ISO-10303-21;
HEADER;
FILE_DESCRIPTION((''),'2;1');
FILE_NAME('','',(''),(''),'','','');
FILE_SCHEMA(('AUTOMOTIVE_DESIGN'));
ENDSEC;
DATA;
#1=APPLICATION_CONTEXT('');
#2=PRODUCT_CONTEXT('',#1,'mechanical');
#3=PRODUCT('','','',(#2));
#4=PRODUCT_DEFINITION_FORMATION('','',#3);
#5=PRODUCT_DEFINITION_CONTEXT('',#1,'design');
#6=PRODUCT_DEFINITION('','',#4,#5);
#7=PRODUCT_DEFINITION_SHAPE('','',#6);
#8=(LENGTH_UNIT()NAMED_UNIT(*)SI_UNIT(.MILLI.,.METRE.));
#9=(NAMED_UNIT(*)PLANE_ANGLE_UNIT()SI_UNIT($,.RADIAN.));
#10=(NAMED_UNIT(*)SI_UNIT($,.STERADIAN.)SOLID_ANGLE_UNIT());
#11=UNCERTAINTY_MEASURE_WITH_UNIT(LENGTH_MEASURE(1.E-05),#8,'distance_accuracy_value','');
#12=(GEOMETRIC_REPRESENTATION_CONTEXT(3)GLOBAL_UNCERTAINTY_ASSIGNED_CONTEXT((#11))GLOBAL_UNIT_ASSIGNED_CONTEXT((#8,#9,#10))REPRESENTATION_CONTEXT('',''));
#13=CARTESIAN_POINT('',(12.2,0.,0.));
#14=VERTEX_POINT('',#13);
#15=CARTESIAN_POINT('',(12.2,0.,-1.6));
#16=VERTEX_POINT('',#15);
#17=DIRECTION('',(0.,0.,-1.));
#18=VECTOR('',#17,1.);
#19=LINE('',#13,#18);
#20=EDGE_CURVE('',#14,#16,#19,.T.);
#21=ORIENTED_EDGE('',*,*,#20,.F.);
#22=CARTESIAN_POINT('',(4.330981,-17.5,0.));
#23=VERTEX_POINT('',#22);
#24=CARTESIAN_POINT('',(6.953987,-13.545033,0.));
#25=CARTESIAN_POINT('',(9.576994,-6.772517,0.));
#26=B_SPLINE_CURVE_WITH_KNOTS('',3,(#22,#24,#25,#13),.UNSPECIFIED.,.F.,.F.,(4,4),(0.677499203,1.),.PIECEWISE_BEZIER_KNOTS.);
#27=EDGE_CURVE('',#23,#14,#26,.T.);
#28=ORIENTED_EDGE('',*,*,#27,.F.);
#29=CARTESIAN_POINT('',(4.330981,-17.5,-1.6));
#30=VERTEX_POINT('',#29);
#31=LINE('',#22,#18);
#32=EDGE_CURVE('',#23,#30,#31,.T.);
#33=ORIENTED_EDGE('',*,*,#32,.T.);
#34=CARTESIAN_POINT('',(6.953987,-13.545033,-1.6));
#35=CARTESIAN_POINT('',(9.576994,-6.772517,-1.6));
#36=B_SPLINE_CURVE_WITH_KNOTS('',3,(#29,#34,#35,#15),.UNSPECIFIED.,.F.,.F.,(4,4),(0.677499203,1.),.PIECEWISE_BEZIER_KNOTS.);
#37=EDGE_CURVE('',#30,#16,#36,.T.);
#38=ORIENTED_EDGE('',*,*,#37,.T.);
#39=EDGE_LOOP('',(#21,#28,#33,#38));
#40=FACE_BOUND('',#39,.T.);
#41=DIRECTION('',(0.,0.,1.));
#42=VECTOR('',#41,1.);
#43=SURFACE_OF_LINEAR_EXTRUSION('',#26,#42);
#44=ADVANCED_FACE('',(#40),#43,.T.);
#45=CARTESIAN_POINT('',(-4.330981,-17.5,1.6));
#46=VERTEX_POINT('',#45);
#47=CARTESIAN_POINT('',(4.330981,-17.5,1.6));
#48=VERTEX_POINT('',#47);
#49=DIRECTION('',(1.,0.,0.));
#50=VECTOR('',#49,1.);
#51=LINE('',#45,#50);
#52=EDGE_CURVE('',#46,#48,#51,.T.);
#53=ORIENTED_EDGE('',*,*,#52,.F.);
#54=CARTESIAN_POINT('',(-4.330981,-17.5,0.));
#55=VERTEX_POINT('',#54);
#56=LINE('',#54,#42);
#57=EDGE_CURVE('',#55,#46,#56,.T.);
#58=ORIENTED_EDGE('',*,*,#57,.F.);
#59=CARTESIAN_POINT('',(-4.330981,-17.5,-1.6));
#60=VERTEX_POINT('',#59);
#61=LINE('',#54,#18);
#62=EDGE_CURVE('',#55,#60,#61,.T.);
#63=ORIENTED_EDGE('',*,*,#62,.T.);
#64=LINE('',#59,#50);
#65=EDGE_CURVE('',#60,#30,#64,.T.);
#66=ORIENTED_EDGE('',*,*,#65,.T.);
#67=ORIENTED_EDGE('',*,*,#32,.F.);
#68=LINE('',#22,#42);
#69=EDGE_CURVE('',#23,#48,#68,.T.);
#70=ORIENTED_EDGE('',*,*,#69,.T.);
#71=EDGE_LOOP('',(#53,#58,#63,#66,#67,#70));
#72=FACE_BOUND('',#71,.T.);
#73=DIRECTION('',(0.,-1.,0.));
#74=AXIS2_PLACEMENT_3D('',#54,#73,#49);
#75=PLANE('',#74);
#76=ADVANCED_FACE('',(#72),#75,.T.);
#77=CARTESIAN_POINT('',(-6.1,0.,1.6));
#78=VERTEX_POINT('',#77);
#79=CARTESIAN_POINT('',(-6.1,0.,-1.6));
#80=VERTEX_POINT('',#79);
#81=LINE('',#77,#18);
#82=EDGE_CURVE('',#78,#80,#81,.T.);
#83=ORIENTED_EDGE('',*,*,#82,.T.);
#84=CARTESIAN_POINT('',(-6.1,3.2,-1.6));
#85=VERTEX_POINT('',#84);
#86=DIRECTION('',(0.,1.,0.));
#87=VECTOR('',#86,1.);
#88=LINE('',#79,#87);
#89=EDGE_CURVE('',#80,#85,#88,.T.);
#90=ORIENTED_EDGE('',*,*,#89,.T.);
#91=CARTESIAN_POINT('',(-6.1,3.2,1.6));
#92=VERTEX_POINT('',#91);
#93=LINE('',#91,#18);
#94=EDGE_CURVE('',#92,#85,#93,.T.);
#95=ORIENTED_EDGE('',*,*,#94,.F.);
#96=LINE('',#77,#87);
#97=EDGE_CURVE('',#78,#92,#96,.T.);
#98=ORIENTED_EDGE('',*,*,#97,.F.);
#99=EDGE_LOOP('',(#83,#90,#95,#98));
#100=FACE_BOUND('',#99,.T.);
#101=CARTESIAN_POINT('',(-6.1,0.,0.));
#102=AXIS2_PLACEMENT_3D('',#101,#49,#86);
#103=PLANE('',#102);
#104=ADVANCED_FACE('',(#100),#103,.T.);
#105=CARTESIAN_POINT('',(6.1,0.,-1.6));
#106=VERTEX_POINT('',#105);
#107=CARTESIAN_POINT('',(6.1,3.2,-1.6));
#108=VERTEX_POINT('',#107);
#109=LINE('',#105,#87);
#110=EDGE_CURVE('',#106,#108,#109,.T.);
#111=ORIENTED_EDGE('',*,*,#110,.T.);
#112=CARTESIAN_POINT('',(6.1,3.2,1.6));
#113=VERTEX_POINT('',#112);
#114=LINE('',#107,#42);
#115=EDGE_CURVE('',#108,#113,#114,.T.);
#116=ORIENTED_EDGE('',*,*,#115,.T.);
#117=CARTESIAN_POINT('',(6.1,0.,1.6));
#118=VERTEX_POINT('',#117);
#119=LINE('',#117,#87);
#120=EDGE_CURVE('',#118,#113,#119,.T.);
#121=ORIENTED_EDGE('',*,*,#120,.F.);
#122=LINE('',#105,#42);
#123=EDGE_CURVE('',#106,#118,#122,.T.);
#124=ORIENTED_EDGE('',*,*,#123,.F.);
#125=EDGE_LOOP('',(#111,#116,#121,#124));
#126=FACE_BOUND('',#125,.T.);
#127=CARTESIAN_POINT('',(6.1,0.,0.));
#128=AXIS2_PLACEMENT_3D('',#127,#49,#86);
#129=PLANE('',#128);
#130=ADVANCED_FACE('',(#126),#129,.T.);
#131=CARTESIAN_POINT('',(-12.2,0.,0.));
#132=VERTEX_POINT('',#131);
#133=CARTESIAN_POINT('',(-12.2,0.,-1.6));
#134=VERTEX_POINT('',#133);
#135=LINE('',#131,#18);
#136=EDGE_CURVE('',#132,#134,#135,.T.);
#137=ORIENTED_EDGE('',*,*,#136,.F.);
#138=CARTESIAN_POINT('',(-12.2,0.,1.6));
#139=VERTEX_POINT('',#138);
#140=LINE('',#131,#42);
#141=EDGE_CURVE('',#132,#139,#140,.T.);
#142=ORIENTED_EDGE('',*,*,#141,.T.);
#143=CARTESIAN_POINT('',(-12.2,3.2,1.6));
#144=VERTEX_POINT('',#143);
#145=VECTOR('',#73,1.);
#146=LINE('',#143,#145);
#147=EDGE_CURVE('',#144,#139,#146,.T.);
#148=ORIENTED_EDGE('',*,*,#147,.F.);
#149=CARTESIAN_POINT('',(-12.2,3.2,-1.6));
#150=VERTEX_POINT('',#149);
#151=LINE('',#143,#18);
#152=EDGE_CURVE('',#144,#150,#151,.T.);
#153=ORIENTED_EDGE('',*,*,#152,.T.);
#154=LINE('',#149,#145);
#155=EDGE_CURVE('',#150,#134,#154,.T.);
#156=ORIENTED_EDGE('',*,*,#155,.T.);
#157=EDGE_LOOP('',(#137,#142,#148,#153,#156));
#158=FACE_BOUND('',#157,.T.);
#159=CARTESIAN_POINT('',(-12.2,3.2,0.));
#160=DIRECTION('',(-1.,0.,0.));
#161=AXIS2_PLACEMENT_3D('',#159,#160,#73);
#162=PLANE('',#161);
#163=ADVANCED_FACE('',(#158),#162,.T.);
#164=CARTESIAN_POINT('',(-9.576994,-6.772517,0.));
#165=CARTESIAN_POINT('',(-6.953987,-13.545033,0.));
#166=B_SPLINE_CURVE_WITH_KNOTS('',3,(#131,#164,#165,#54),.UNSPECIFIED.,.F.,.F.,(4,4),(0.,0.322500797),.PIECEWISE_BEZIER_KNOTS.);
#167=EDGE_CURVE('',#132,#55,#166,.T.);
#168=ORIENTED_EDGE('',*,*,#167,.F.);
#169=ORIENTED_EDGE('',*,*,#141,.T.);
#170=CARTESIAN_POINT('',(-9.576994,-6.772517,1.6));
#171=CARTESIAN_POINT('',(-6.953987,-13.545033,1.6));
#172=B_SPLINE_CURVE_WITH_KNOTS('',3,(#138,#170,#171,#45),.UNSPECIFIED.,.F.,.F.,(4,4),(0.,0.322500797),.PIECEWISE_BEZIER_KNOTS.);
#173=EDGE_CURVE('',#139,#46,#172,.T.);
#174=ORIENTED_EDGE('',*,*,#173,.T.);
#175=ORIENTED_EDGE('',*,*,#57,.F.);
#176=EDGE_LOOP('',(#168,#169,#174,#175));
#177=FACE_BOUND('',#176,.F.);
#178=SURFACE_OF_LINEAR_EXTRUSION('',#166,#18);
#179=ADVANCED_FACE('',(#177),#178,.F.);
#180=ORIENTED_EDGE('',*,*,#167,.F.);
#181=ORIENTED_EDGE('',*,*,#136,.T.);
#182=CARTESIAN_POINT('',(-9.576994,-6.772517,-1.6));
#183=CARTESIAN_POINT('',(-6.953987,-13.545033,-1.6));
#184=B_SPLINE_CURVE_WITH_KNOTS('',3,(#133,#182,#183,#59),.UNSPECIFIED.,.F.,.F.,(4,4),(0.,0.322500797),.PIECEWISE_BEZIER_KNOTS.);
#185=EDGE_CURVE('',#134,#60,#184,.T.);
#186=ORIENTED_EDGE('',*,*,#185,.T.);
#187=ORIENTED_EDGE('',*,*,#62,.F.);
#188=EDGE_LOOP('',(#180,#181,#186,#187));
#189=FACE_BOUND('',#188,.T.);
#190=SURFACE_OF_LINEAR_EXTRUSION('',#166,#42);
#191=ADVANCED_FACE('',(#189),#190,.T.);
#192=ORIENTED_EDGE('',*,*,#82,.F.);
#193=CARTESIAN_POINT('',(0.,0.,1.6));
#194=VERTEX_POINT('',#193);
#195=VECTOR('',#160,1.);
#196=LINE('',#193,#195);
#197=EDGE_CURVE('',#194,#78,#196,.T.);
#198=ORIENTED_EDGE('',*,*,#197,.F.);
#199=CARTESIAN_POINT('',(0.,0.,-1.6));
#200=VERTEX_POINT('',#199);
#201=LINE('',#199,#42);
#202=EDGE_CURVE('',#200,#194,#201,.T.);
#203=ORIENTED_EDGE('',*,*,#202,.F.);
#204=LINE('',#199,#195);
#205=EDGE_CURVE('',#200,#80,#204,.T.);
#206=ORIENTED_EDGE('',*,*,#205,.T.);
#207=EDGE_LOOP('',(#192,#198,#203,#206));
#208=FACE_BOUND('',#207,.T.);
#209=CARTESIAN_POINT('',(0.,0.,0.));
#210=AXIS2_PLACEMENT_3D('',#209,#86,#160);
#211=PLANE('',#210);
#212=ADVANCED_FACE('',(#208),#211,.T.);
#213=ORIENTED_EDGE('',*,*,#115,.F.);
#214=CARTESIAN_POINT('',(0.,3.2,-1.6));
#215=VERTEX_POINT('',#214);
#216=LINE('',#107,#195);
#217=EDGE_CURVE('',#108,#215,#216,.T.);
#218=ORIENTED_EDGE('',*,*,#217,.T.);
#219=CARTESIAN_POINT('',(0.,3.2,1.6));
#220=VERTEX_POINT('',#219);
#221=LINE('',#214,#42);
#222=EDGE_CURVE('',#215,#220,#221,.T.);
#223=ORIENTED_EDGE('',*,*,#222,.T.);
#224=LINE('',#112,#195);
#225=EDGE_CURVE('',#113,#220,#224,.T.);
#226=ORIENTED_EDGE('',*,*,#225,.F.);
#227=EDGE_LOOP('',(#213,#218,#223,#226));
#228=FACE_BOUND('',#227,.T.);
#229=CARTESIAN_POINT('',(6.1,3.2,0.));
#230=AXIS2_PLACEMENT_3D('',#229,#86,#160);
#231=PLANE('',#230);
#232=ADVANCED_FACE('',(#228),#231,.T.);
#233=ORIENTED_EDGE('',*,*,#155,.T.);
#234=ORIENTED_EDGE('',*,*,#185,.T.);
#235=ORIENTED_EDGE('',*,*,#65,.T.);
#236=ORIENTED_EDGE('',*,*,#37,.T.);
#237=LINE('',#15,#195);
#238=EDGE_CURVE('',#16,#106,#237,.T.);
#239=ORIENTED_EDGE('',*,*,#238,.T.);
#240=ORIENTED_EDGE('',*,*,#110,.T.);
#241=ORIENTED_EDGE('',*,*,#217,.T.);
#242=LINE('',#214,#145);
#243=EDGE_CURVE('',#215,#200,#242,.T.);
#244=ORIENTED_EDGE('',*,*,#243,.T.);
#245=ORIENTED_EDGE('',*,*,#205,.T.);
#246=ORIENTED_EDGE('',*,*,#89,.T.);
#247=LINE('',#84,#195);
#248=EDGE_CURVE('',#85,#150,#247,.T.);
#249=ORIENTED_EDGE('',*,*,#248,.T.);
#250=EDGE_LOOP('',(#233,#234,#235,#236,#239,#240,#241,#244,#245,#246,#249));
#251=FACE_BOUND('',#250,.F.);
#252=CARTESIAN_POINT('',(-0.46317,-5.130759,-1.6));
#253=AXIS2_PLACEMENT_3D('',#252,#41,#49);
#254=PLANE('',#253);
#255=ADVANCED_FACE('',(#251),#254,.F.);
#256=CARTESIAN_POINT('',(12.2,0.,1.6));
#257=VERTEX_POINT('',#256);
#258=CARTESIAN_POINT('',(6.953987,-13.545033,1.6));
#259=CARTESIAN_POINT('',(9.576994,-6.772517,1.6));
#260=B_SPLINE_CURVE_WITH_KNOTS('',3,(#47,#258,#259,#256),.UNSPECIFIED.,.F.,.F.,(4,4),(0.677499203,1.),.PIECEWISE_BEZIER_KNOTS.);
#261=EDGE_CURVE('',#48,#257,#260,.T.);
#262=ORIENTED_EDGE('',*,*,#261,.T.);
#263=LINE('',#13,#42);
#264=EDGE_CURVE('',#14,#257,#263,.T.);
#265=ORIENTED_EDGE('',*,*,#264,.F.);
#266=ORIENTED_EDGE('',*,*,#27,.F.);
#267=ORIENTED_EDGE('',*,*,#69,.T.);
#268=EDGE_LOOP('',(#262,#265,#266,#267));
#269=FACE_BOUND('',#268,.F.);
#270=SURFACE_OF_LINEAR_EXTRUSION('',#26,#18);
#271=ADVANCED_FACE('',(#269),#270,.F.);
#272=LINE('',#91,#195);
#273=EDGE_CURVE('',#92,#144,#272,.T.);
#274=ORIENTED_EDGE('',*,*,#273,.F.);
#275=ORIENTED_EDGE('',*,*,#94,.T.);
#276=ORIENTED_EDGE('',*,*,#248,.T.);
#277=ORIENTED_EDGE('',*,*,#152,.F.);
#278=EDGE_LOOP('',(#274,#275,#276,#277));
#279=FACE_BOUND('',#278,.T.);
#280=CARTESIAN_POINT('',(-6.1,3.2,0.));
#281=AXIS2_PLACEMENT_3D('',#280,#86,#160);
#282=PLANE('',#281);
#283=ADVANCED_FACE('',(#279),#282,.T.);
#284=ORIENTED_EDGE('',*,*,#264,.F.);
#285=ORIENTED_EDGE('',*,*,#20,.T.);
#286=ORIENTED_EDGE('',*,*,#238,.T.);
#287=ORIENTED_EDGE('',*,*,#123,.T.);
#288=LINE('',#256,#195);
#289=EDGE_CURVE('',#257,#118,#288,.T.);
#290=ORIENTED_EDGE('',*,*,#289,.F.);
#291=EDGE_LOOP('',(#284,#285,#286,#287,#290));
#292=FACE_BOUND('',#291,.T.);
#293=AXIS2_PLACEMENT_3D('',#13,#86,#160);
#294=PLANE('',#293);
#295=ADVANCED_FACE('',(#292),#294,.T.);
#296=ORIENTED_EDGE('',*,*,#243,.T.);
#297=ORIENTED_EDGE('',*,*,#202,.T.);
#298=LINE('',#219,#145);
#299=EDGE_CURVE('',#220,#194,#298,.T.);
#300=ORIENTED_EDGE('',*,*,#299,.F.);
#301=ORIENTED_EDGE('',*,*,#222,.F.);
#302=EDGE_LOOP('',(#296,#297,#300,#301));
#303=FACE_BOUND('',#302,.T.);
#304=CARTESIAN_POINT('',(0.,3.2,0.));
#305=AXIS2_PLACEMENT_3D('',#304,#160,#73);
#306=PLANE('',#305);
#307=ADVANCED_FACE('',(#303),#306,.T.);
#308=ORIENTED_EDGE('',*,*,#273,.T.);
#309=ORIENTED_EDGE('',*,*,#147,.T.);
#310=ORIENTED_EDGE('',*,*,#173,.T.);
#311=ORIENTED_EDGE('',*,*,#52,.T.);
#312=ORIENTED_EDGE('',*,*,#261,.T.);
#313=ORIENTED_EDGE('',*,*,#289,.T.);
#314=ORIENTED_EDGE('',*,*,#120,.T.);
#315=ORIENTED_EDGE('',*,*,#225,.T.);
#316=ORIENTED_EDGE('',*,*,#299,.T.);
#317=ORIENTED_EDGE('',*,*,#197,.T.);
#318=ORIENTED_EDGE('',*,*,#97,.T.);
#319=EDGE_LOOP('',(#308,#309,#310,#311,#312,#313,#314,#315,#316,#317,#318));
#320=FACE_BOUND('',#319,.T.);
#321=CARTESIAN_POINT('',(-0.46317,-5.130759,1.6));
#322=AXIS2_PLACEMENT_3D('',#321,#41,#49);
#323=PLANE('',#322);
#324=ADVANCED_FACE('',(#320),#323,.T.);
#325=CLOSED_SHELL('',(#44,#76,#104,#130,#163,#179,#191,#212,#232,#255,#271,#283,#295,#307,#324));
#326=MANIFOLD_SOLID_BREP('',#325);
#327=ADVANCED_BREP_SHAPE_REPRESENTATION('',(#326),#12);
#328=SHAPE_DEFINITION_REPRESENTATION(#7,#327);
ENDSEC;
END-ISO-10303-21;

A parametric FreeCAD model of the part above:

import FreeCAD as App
import Part
import Sketcher

V = App.Vector
Q = App.Units.Quantity

doc = App.newDocument("Part")
body = doc.addObject("PartDesign::Body", "Body")

# Sketch on XY plane
sketch1 = body.newObject("Sketcher::SketchObject", "Sketch")
sketch1.AttachmentSupport = (doc.getObject("XY_Plane"), [""])
sketch1.MapMode = "FlatFace"
sketch1.addGeometry(Part.LineSegment(V(-12.2, 3.2, 0), V(-12.2, 0, 0)), False)
sketch1.addGeometry(Part.BSplineCurve([V(-12.2, 0, 0), V(-9.576994, -6.772517, 0), V(-6.953987, -13.545033, 0), V(-4.330981, -17.5, 0)], [4, 4], [0, 0.322500797], False, 3, [1, 1, 1, 1], False), False)
sketch1.addGeometry(Part.LineSegment(V(-4.330981, -17.5, 0), V(4.330981, -17.5, 0)), False)
sketch1.addGeometry(Part.BSplineCurve([V(4.330981, -17.5, 0), V(6.953987, -13.545033, 0), V(9.576994, -6.772517, 0), V(12.2, 0, 0)], [4, 4], [0.677499203, 1], False, 3, [1, 1, 1, 1], False), False)
sketch1.addGeometry(Part.LineSegment(V(12.2, 0, 0), V(6.1, 0, 0)), False)
sketch1.addGeometry(Part.LineSegment(V(6.1, 0, 0), V(6.1, 3.2, 0)), False)
sketch1.addGeometry(Part.LineSegment(V(6.1, 3.2, 0), V(0, 3.2, 0)), False)
sketch1.addGeometry(Part.LineSegment(V(0, 3.2, 0), V(0, 0, 0)), False)
sketch1.addGeometry(Part.LineSegment(V(0, 0, 0), V(-6.1, 0, 0)), False)
sketch1.addGeometry(Part.LineSegment(V(-6.1, 0, 0), V(-6.1, 3.2, 0)), False)
sketch1.addGeometry(Part.LineSegment(V(-6.1, 3.2, 0), V(-12.2, 3.2, 0)), False)
sketch1.addConstraint(Sketcher.Constraint("Block", 1))
sketch1.addConstraint(Sketcher.Constraint("Block", 3))
sketch1.addConstraint(Sketcher.Constraint("Coincident", 0, 2, 1, 1))
sketch1.addConstraint(Sketcher.Constraint("Coincident", 1, 2, 2, 1))
sketch1.addConstraint(Sketcher.Constraint("Coincident", 2, 2, 3, 1))
sketch1.addConstraint(Sketcher.Constraint("Coincident", 3, 2, 4, 1))
sketch1.addConstraint(Sketcher.Constraint("Coincident", 4, 2, 5, 1))
sketch1.addConstraint(Sketcher.Constraint("Coincident", 5, 2, 6, 1))
sketch1.addConstraint(Sketcher.Constraint("Coincident", 6, 2, 7, 1))
sketch1.addConstraint(Sketcher.Constraint("Coincident", 7, 2, 8, 1))
sketch1.addConstraint(Sketcher.Constraint("Coincident", 8, 2, 9, 1))
sketch1.addConstraint(Sketcher.Constraint("Coincident", 9, 2, 10, 1))
sketch1.addConstraint(Sketcher.Constraint("Coincident", 10, 2, 0, 1))
sketch1.addConstraint(Sketcher.Constraint("Vertical", 0))
sketch1.addConstraint(Sketcher.Constraint("Horizontal", 4))
sketch1.addConstraint(Sketcher.Constraint("Vertical", 5))
sketch1.addConstraint(Sketcher.Constraint("Horizontal", 6))
sketch1.addConstraint(Sketcher.Constraint("Vertical", 7))
sketch1.addConstraint(Sketcher.Constraint("Horizontal", 8))
sketch1.addConstraint(Sketcher.Constraint("Vertical", 9))
sketch1.addConstraint(Sketcher.Constraint("Horizontal", 10))
sketch1.addConstraint(Sketcher.Constraint("Coincident", 7, 2, -1, 1))
sketch1.addConstraint(Sketcher.Constraint("Symmetric", 5, 2, 9, 2, -2))
sketch1.addConstraint(Sketcher.Constraint("Equal", 4, 6))
sketch1.addConstraint(Sketcher.Constraint("DistanceY", 0, 2, 0, 1, Q("3.2 mm")))
pad1 = body.newObject("PartDesign::Pad", "Pad")
pad1.Profile = sketch1
pad1.Length = 3.2
pad1.Midplane = True

doc.recompute()
